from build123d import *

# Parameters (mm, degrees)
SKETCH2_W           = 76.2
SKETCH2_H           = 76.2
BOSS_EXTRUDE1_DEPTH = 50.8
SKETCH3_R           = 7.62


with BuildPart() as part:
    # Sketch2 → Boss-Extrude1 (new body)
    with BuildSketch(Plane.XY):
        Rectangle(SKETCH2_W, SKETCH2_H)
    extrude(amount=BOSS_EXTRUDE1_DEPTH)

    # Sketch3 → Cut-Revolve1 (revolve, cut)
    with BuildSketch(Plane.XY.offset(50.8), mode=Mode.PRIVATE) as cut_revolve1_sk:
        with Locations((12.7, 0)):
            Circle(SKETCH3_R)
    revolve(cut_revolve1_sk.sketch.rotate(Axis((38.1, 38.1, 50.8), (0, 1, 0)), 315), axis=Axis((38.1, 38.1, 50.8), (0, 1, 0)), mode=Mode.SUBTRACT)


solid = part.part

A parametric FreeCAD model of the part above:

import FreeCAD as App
import Part
import Sketcher
Q = App.Units.Quantity


def add_polygon(sketch, points):
    """Adds a closed chain of lines whose ends are joined by coincident constraints."""
    first, n = sketch.GeometryCount, len(points)
    for a, b in zip(points, points[1:] + points[:1]):
        sketch.addGeometry(Part.LineSegment(App.Vector(*a, 0), App.Vector(*b, 0)), False)
    for i in range(n):
        sketch.addConstraint(Sketcher.Constraint("Coincident", first + i, 2, first + (i + 1) % n, 1))

doc = App.newDocument("Part")
body = doc.addObject("PartDesign::Body", "Body")

sketch1 = doc.addObject("Sketcher::SketchObject", "Sketch")
body.addObject(sketch1)
sketch1.AttachmentSupport = (doc.XY_Plane, [""])
sketch1.MapMode = "FlatFace"
add_polygon(sketch1, [(-38.1, 38.1), (-38.1, -38.1), (38.1, -38.1), (38.1, 38.1)])
sketch1.addConstraint(Sketcher.Constraint("Vertical", 0))
sketch1.addConstraint(Sketcher.Constraint("Horizontal", 1))
sketch1.addConstraint(Sketcher.Constraint("Vertical", 2))
sketch1.addConstraint(Sketcher.Constraint("Horizontal", 3))
sketch1.addConstraint(Sketcher.Constraint("Symmetric", 0, 2, 2, 2, -1, 1))
sketch1.addConstraint(Sketcher.Constraint("Equal", 3, 0))
sketch1.addConstraint(Sketcher.Constraint("DistanceX", 1, 1, 1, 2, Q("3 in")))
pad1 = doc.addObject("PartDesign::Pad", "Pad")
body.addObject(pad1)
pad1.Profile = sketch1
pad1.Length = Q("2 in")

sketch2 = doc.addObject("Sketcher::SketchObject", "Sketch001")
body.addObject(sketch2)
sketch2.AttachmentSupport = (doc.XY_Plane, [""])
sketch2.MapMode = "FlatFace"
sketch2.AttachmentOffset = App.Placement(App.Vector(0, 0, 2 * 25.4), App.Rotation())
sketch2.addGeometry(Part.Circle(App.Vector(12.7, 0, 0), App.Vector(0, 0, 1), 7.62), False)
sketch2.addGeometry(Part.LineSegment(App.Vector(38.1, 0, 0), App.Vector(38.1, 10, 0)), True)
sketch2.addConstraint(Sketcher.Constraint("Vertical", 1))
sketch2.addConstraint(Sketcher.Constraint("PointOnObject", 0, 3, -1))
sketch2.addConstraint(Sketcher.Constraint("PointOnObject", 1, 1, -1))
sketch2.addConstraint(Sketcher.Constraint("Diameter", 0, Q("0.6 in")))
sketch2.addConstraint(Sketcher.Constraint("DistanceX", 0, 3, 1, 1, Q("1 in")))
sketch2.addConstraint(Sketcher.Constraint("DistanceX", -1, 1, 0, 3, Q("0.5 in")))
sketch2.addConstraint(Sketcher.Constraint("DistanceY", 1, 1, 1, 2, Q("10 mm")))
groove = doc.addObject("PartDesign::Groove", "Groove")
body.addObject(groove)
groove.Profile = sketch2
groove.ReferenceAxis = (sketch2, ["Axis0"])
groove.Angle = 360

doc.recompute()
